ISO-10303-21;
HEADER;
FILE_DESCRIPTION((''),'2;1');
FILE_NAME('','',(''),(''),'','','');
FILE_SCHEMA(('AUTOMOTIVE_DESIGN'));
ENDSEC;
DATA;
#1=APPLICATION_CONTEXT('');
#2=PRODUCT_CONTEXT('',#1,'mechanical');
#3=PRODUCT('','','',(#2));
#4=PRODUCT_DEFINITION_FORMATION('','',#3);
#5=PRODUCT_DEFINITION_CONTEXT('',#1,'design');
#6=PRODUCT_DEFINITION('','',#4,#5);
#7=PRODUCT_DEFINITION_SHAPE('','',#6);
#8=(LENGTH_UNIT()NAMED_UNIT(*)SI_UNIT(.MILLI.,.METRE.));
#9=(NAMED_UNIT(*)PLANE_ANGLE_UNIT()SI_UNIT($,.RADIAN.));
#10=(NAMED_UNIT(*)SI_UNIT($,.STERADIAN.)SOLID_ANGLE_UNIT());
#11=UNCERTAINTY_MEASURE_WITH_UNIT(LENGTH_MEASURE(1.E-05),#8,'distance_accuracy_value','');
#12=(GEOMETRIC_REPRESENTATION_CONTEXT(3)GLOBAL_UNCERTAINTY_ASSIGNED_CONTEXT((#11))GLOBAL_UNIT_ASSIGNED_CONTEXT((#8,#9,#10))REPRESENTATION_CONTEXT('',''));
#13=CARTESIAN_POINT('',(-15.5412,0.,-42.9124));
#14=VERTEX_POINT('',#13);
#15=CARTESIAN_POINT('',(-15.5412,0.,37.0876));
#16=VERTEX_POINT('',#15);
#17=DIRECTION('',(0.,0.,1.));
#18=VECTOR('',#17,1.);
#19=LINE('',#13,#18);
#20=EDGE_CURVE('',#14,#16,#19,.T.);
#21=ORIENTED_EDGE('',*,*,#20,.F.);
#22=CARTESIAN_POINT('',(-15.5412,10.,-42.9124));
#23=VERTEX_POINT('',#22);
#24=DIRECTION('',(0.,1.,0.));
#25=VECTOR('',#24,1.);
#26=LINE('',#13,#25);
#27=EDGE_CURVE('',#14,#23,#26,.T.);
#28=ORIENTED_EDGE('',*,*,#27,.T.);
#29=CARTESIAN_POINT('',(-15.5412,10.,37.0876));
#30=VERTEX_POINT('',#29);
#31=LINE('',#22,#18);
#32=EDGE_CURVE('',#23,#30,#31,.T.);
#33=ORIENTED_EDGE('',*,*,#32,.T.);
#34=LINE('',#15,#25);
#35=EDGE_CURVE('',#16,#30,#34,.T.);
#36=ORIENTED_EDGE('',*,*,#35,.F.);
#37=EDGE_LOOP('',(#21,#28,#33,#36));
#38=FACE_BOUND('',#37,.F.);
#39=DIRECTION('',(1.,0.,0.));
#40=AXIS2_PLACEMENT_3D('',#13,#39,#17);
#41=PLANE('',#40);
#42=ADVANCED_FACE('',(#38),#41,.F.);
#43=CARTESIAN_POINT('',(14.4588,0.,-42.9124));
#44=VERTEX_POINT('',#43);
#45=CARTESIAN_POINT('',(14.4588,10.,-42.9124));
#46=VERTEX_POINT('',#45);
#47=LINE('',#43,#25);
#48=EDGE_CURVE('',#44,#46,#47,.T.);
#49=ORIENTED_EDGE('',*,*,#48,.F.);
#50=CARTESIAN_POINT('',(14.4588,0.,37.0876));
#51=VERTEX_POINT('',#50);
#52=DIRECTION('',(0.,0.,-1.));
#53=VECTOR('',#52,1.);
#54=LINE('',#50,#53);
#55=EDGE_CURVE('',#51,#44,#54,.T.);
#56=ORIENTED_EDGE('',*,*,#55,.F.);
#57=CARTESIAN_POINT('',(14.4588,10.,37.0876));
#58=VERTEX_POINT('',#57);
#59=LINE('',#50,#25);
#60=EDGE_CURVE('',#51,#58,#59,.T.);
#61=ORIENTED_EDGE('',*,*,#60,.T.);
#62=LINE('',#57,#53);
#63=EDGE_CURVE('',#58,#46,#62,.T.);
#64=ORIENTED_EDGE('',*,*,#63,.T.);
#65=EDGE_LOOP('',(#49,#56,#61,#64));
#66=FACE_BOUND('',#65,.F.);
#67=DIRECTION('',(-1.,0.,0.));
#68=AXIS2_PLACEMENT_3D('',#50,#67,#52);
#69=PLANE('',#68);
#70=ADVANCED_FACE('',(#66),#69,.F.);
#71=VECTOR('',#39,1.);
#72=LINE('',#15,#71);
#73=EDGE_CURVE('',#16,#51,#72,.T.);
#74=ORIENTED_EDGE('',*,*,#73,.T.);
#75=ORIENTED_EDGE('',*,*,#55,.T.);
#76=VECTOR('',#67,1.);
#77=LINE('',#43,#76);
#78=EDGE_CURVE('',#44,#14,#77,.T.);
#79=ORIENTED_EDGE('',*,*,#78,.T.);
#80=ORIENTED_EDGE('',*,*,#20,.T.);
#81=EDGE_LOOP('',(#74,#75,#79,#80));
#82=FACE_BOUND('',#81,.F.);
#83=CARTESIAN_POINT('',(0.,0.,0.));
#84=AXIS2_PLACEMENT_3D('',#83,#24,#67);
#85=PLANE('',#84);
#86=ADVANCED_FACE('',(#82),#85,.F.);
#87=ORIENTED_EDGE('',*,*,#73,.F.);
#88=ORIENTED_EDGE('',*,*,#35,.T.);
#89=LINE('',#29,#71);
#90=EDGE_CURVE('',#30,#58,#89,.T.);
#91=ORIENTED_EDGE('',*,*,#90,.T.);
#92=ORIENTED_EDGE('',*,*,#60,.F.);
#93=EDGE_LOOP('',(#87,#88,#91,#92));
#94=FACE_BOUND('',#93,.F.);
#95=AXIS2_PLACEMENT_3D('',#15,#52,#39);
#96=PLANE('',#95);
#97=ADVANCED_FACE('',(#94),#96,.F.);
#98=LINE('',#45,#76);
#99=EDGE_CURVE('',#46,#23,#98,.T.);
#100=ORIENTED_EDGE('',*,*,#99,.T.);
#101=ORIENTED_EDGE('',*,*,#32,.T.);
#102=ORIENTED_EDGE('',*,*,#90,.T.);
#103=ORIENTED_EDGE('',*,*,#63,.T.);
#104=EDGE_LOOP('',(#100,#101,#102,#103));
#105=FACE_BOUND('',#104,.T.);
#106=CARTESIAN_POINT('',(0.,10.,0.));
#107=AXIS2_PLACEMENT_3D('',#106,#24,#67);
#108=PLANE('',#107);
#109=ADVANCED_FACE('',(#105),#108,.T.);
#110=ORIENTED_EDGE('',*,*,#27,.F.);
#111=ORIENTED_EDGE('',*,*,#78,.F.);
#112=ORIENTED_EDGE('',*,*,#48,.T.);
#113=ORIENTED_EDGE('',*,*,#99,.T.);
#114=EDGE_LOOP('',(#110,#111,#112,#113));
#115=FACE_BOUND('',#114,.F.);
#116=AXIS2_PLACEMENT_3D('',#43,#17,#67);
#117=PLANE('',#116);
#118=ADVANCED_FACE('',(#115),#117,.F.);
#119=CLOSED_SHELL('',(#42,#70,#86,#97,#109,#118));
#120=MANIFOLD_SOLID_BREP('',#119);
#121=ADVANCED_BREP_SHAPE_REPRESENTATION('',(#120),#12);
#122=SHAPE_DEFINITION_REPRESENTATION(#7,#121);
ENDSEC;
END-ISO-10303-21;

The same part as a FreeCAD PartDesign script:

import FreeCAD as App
import Part
import Sketcher

V = App.Vector
Q = App.Units.Quantity


def add_polygon(sketch, points):
    """Adds a closed chain of lines whose ends are joined by coincident constraints."""
    first, n = sketch.GeometryCount, len(points)
    for a, b in zip(points, points[1:] + points[:1]):
        sketch.addGeometry(Part.LineSegment(App.Vector(*a, 0), App.Vector(*b, 0)), False)
    for i in range(n):
        sketch.addConstraint(Sketcher.Constraint("Coincident", first + i, 2, first + (i + 1) % n, 1))

doc = App.newDocument("Part")
params = doc.addObject("Spreadsheet::Sheet", "Params")
for row, (alias, value) in enumerate([
    ("sketch1_width", "30 mm"),
    ("sketch1_height", "80 mm"),
    ("pad1_length", "10 mm"),
], start=1):
    params.set(f"A{row}", alias)
    params.set(f"B{row}", "=" + value)
    params.setAlias(f"B{row}", alias)

body = doc.addObject("PartDesign::Body", "Body")

# Sketch on XZ plane
sketch1 = body.newObject("Sketcher::SketchObject", "Sketch")
sketch1.AttachmentSupport = (doc.getObject("XZ_Plane"), [""])
sketch1.MapMode = "FlatFace"
add_polygon(sketch1, [(-15.5412, -42.9124), (-15.5412, 37.0876), (14.4588, 37.0876), (14.4588, -42.9124)])  # lines 0-3
sketch1.addConstraint([
    Sketcher.Constraint("Vertical", 0),
    Sketcher.Constraint("Horizontal", 1),
    Sketcher.Constraint("Vertical", 2),
    Sketcher.Constraint("Horizontal", 3),
    Sketcher.Constraint("DistanceX", 1, 1, 1, 2, Q("30 mm")),
    Sketcher.Constraint("DistanceY", 0, 1, 0, 2, Q("80 mm")),
    Sketcher.Constraint("DistanceX", 0, 2, -1, 1, Q("15.5412 mm")),
    Sketcher.Constraint("DistanceY", -1, 1, 0, 2, Q("37.0876 mm")),
])
sketch1.setExpression("Constraints[8]", "Params.sketch1_width")
sketch1.setExpression("Constraints[9]", "Params.sketch1_height")
pad1 = body.newObject("PartDesign::Pad", "Pad")
pad1.Profile = sketch1
pad1.setExpression("Length", "Params.pad1_length")
pad1.Reversed = True

doc.recompute()
